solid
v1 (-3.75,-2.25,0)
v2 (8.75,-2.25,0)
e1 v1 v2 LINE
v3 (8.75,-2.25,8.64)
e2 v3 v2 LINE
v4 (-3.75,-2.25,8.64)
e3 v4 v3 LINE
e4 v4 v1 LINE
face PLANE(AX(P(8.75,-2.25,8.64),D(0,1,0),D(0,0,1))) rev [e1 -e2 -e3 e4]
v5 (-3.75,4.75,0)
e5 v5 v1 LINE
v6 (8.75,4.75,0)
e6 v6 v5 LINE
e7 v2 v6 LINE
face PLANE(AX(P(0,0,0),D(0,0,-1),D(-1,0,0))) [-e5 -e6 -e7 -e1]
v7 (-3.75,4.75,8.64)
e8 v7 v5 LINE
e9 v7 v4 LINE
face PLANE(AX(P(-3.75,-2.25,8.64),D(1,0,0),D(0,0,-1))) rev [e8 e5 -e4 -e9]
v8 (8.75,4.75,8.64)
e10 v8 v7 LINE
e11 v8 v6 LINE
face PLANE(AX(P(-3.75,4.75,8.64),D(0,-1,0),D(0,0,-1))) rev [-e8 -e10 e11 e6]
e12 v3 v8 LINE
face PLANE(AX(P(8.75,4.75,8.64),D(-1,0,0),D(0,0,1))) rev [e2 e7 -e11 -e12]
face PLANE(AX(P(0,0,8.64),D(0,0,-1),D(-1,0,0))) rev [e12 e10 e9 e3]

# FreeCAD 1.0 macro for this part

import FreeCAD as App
import Part
import Sketcher


def add_polygon(sketch, points):
    """Adds a closed chain of lines whose ends are joined by coincident constraints."""
    first, n = sketch.GeometryCount, len(points)
    for a, b in zip(points, points[1:] + points[:1]):
        sketch.addGeometry(Part.LineSegment(App.Vector(*a, 0), App.Vector(*b, 0)), False)
    for i in range(n):
        sketch.addConstraint(Sketcher.Constraint("Coincident", first + i, 2, first + (i + 1) % n, 1))

doc = App.newDocument("Part")
body = doc.addObject("PartDesign::Body", "Body")

# Sketch on XY plane
sketch1 = doc.addObject("Sketcher::SketchObject", "Sketch")
body.addObject(sketch1)
sketch1.AttachmentSupport = (doc.XY_Plane, [""])
sketch1.MapMode = "FlatFace"
add_polygon(sketch1, [(-4, 5), (-4, -2), (9, -2), (9, 5)])  # lines 0-3
sketch1.addConstraint([
    Sketcher.Constraint("Vertical", 0),
    Sketcher.Constraint("Horizontal", 1),
    Sketcher.Constraint("Vertical", 2),
    Sketcher.Constraint("Horizontal", 3),
    Sketcher.Constraint("DistanceY", 0, 2, 0, 1, 7.0),
    Sketcher.Constraint("DistanceX", 1, 1, 1, 2, 12.5),
    Sketcher.Constraint("DistanceX", 0, 2, -1, 1, 3.75),
    Sketcher.Constraint("DistanceY", 0, 2, -1, 1, 2.25),
])
pad1 = doc.addObject("PartDesign::Pad", "Pad")
body.addObject(pad1)
pad1.Profile = sketch1
pad1.Length = 8.64

doc.recompute()
